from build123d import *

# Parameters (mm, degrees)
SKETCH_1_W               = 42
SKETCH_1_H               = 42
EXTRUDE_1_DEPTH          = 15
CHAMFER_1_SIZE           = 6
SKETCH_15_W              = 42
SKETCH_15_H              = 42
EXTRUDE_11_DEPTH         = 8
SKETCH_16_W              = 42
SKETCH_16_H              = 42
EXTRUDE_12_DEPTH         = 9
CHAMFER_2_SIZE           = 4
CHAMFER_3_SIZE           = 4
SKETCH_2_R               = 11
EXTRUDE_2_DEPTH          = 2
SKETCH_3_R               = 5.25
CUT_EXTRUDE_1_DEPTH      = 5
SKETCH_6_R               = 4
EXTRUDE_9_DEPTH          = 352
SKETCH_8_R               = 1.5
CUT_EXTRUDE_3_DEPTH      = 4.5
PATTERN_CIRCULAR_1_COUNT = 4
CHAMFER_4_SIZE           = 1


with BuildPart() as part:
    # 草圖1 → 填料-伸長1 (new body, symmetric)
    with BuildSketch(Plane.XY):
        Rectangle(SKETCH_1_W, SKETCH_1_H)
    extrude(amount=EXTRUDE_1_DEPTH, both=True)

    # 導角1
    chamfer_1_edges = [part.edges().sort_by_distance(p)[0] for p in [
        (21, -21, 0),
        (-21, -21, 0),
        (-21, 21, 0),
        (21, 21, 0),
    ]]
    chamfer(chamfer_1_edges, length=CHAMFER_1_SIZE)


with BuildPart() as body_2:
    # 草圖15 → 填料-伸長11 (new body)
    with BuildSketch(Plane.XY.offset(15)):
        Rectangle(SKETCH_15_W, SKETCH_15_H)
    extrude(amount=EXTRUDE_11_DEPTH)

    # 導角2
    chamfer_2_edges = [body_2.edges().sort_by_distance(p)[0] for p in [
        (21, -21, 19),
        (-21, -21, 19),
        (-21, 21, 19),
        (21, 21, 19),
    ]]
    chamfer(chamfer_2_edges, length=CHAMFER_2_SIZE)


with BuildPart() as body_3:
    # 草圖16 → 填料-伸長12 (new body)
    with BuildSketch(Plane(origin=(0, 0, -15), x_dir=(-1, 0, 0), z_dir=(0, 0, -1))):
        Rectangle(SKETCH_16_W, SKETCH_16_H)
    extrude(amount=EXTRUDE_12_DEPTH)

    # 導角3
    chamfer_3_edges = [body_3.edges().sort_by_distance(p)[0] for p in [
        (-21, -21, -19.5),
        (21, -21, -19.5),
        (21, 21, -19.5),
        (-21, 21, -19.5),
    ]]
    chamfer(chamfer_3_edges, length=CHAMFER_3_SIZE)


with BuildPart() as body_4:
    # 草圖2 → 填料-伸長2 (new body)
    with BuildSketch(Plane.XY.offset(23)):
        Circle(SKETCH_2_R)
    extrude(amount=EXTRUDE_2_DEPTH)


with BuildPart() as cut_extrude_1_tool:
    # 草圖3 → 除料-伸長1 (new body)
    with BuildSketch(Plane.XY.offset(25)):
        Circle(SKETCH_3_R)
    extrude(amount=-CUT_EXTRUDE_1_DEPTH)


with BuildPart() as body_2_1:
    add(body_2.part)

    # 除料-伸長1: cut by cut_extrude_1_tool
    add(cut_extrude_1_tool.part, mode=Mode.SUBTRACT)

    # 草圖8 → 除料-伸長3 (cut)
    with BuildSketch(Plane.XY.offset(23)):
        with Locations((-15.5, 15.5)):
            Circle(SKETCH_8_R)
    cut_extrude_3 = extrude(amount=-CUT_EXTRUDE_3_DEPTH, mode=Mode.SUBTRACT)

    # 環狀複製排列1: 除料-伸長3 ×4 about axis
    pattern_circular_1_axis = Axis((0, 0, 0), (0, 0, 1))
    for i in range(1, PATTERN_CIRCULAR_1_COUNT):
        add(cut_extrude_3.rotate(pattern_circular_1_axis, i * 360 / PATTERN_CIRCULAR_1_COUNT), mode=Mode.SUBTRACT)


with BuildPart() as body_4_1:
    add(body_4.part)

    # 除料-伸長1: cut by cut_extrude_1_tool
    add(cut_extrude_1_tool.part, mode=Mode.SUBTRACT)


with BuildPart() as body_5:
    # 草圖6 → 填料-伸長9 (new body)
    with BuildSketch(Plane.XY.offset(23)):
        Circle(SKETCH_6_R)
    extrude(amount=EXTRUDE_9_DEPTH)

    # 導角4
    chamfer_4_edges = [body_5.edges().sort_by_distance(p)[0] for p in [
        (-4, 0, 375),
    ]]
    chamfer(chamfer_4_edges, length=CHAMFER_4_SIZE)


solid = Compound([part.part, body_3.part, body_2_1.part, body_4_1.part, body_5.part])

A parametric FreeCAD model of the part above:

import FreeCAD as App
import Part
import Sketcher


def edges_at(feature, points):
    """Names of the edges that pass closest to the given points."""
    edges = feature.Shape.Edges
    near = lambda p: min(range(len(edges)), key=lambda i: edges[i].distToShape(Part.Vertex(*p))[0])
    return sorted({f"Edge{near(p) + 1}" for p in points})


def add_polygon(sketch, points):
    """Adds a closed chain of lines whose ends are joined by coincident constraints."""
    first, n = sketch.GeometryCount, len(points)
    for a, b in zip(points, points[1:] + points[:1]):
        sketch.addGeometry(Part.LineSegment(App.Vector(*a, 0), App.Vector(*b, 0)), False)
    for i in range(n):
        sketch.addConstraint(Sketcher.Constraint("Coincident", first + i, 2, first + (i + 1) % n, 1))

doc = App.newDocument("Part")
body = doc.addObject("PartDesign::Body", "Body")

# Sketch on XY plane
sketch1 = body.newObject("Sketcher::SketchObject", "Sketch")
sketch1.AttachmentSupport = (doc.getObject("XY_Plane"), [""])
sketch1.MapMode = "FlatFace"
add_polygon(sketch1, [(-21, 21), (-21, -21), (21, -21), (21, 21)])  # lines 0-3
sketch1.addConstraint(Sketcher.Constraint("Vertical", 0))
sketch1.addConstraint(Sketcher.Constraint("Horizontal", 1))
sketch1.addConstraint(Sketcher.Constraint("Vertical", 2))
sketch1.addConstraint(Sketcher.Constraint("Horizontal", 3))
sketch1.addConstraint(Sketcher.Constraint("Symmetric", 0, 2, 2, 2, -1, 1))
sketch1.addConstraint(Sketcher.Constraint("Equal", 3, 0))
sketch1.addConstraint(Sketcher.Constraint("DistanceX", 1, 1, 1, 2, 42.0))
pad1 = body.newObject("PartDesign::Pad", "Pad")
pad1.Profile = sketch1
pad1.Length = 30
pad1.Midplane = True
doc.recompute()

chamfer = body.newObject("PartDesign::Chamfer", "Chamfer")
chamfer.Base = (pad1, edges_at(pad1, [
    (21, -21, 0),
    (-21, -21, 0),
    (-21, 21, 0),
    (21, 21, 0),
]))
chamfer.Size = 6
body2 = doc.addObject("PartDesign::Body", "Body001")

# Sketch on XY plane
sketch2 = body2.newObject("Sketcher::SketchObject", "Sketch001")
sketch2.AttachmentSupport = (doc.getObject("XY_Plane001"), [""])
sketch2.MapMode = "FlatFace"
sketch2.AttachmentOffset = App.Placement(App.Vector(0, 0, 15), App.Rotation())
add_polygon(sketch2, [(-21, 21), (-21, -21), (21, -21), (21, 21)])  # lines 0-3
sketch2.addConstraint(Sketcher.Constraint("Vertical", 0))
sketch2.addConstraint(Sketcher.Constraint("Horizontal", 1))
sketch2.addConstraint(Sketcher.Constraint("Vertical", 2))
sketch2.addConstraint(Sketcher.Constraint("Horizontal", 3))
sketch2.addConstraint(Sketcher.Constraint("Symmetric", 0, 2, 2, 2, -1, 1))
sketch2.addConstraint(Sketcher.Constraint("Equal", 3, 0))
sketch2.addConstraint(Sketcher.Constraint("DistanceX", 1, 1, 1, 2, 42.0))
pad2 = body2.newObject("PartDesign::Pad", "Pad001")
pad2.Profile = sketch2
pad2.Length = 8
doc.recompute()

chamfer2 = body2.newObject("PartDesign::Chamfer", "Chamfer001")
chamfer2.Base = (pad2, edges_at(pad2, [
    (21, -21, 19),
    (-21, -21, 19),
    (-21, 21, 19),
    (21, 21, 19),
]))
chamfer2.Size = 4
body3 = doc.addObject("PartDesign::Body", "Body002")

# Sketch on XY plane
sketch3 = body3.newObject("Sketcher::SketchObject", "Sketch002")
sketch3.AttachmentSupport = (doc.getObject("XY_Plane002"), [""])
sketch3.MapMode = "FlatFace"
sketch3.AttachmentOffset = App.Placement(App.Vector(0, 0, -15), App.Rotation())
add_polygon(sketch3, [(21, 21), (21, -21), (-21, -21), (-21, 21)])  # lines 0-3
sketch3.addConstraint(Sketcher.Constraint("Vertical", 0))
sketch3.addConstraint(Sketcher.Constraint("Horizontal", 1))
sketch3.addConstraint(Sketcher.Constraint("Vertical", 2))
sketch3.addConstraint(Sketcher.Constraint("Horizontal", 3))
sketch3.addConstraint(Sketcher.Constraint("Symmetric", 0, 2, 2, 2, -1, 1))
sketch3.addConstraint(Sketcher.Constraint("Equal", 3, 0))
sketch3.addConstraint(Sketcher.Constraint("DistanceX", 1, 2, 1, 1, 42.0))
pad3 = body3.newObject("PartDesign::Pad", "Pad002")
pad3.Profile = sketch3
pad3.Length = 9
pad3.Reversed = True
doc.recompute()

chamfer3 = body3.newObject("PartDesign::Chamfer", "Chamfer002")
chamfer3.Base = (pad3, edges_at(pad3, [
    (-21, -21, -19.5),
    (21, -21, -19.5),
    (21, 21, -19.5),
    (-21, 21, -19.5),
]))
chamfer3.Size = 4
body4 = doc.addObject("PartDesign::Body", "Body003")

# Sketch on XY plane
sketch4 = body4.newObject("Sketcher::SketchObject", "Sketch003")
sketch4.AttachmentSupport = (doc.getObject("XY_Plane003"), [""])
sketch4.MapMode = "FlatFace"
sketch4.AttachmentOffset = App.Placement(App.Vector(0, 0, 23), App.Rotation())
sketch4.addGeometry(Part.Circle(App.Vector(0, 0, 0), App.Vector(0, 0, 1), 11), False)
sketch4.addConstraint(Sketcher.Constraint("Coincident", 0, 3, -1, 1))
sketch4.addConstraint(Sketcher.Constraint("Diameter", 0, 22.0))
pad4 = body4.newObject("PartDesign::Pad", "Pad003")
pad4.Profile = sketch4
pad4.Length = 2
body5 = doc.addObject("PartDesign::Body", "Body004")

# Sketch on XY plane
sketch5 = body5.newObject("Sketcher::SketchObject", "Sketch004")
sketch5.AttachmentSupport = (doc.getObject("XY_Plane004"), [""])
sketch5.MapMode = "FlatFace"
sketch5.AttachmentOffset = App.Placement(App.Vector(0, 0, 25), App.Rotation())
sketch5.addGeometry(Part.Circle(App.Vector(0, 0, 0), App.Vector(0, 0, 1), 5), False)
sketch5.addConstraint(Sketcher.Constraint("Coincident", 0, 3, -1, 1))
sketch5.addConstraint(Sketcher.Constraint("Diameter", 0, 10.5))
pad5 = body5.newObject("PartDesign::Pad", "Pad004")
pad5.Profile = sketch5
pad5.Length = 5
pad5.Reversed = True
doc.recompute()

body6 = doc.addObject("PartDesign::Body", "Body005")
body6.BaseFeature = body5
boolean = body2.newObject("PartDesign::Boolean", "Boolean")
boolean.Type = "Cut"
boolean.addObjects([body6])
doc.recompute()

# Sketch on XY plane
sketch6 = body2.newObject("Sketcher::SketchObject", "Sketch005")
sketch6.AttachmentSupport = (doc.getObject("XY_Plane001"), [""])
sketch6.MapMode = "FlatFace"
sketch6.AttachmentOffset = App.Placement(App.Vector(0, 0, 23), App.Rotation())
sketch6.addGeometry(Part.Circle(App.Vector(-15.5, 15.5, 0), App.Vector(0, 0, 1), 1.5), False)
sketch6.addConstraint(Sketcher.Constraint("Diameter", 0, 3.0))
sketch6.addConstraint(Sketcher.Constraint("DistanceX", 0, 3, -1, 1, 15.5))
sketch6.addConstraint(Sketcher.Constraint("DistanceY", -1, 1, 0, 3, 15.5))
pocket1 = body2.newObject("PartDesign::Pocket", "Pocket")
pocket1.Profile = sketch6
pocket1.Length = 4.5
doc.recompute()

polarpattern = body2.newObject("PartDesign::PolarPattern", "PolarPattern")
polarpattern.Originals = [pocket1]
polarpattern.Axis = (doc.getObject("Z_Axis001"), [""])
polarpattern.Angle = 360
polarpattern.Occurrences = 4
body2.Tip = polarpattern
doc.recompute()

boolean2 = body4.newObject("PartDesign::Boolean", "Boolean001")
boolean2.Type = "Cut"
boolean2.addObjects([body5])
body7 = doc.addObject("PartDesign::Body", "Body006")

# Sketch on XY plane
sketch7 = body7.newObject("Sketcher::SketchObject", "Sketch006")
sketch7.AttachmentSupport = (doc.getObject("XY_Plane006"), [""])
sketch7.MapMode = "FlatFace"
sketch7.AttachmentOffset = App.Placement(App.Vector(0, 0, 23), App.Rotation())
sketch7.addGeometry(Part.Circle(App.Vector(0, 0, 0), App.Vector(0, 0, 1), 4), False)
sketch7.addConstraint(Sketcher.Constraint("Coincident", 0, 3, -1, 1))
sketch7.addConstraint(Sketcher.Constraint("Diameter", 0, 8.0))
pad6 = body7.newObject("PartDesign::Pad", "Pad005")
pad6.Profile = sketch7
pad6.Length = 352
doc.recompute()

chamfer4 = body7.newObject("PartDesign::Chamfer", "Chamfer003")
chamfer4.Base = (pad6, edges_at(pad6, [(-4, 0, 375)]))
chamfer4.Size = 1

doc.recompute()
